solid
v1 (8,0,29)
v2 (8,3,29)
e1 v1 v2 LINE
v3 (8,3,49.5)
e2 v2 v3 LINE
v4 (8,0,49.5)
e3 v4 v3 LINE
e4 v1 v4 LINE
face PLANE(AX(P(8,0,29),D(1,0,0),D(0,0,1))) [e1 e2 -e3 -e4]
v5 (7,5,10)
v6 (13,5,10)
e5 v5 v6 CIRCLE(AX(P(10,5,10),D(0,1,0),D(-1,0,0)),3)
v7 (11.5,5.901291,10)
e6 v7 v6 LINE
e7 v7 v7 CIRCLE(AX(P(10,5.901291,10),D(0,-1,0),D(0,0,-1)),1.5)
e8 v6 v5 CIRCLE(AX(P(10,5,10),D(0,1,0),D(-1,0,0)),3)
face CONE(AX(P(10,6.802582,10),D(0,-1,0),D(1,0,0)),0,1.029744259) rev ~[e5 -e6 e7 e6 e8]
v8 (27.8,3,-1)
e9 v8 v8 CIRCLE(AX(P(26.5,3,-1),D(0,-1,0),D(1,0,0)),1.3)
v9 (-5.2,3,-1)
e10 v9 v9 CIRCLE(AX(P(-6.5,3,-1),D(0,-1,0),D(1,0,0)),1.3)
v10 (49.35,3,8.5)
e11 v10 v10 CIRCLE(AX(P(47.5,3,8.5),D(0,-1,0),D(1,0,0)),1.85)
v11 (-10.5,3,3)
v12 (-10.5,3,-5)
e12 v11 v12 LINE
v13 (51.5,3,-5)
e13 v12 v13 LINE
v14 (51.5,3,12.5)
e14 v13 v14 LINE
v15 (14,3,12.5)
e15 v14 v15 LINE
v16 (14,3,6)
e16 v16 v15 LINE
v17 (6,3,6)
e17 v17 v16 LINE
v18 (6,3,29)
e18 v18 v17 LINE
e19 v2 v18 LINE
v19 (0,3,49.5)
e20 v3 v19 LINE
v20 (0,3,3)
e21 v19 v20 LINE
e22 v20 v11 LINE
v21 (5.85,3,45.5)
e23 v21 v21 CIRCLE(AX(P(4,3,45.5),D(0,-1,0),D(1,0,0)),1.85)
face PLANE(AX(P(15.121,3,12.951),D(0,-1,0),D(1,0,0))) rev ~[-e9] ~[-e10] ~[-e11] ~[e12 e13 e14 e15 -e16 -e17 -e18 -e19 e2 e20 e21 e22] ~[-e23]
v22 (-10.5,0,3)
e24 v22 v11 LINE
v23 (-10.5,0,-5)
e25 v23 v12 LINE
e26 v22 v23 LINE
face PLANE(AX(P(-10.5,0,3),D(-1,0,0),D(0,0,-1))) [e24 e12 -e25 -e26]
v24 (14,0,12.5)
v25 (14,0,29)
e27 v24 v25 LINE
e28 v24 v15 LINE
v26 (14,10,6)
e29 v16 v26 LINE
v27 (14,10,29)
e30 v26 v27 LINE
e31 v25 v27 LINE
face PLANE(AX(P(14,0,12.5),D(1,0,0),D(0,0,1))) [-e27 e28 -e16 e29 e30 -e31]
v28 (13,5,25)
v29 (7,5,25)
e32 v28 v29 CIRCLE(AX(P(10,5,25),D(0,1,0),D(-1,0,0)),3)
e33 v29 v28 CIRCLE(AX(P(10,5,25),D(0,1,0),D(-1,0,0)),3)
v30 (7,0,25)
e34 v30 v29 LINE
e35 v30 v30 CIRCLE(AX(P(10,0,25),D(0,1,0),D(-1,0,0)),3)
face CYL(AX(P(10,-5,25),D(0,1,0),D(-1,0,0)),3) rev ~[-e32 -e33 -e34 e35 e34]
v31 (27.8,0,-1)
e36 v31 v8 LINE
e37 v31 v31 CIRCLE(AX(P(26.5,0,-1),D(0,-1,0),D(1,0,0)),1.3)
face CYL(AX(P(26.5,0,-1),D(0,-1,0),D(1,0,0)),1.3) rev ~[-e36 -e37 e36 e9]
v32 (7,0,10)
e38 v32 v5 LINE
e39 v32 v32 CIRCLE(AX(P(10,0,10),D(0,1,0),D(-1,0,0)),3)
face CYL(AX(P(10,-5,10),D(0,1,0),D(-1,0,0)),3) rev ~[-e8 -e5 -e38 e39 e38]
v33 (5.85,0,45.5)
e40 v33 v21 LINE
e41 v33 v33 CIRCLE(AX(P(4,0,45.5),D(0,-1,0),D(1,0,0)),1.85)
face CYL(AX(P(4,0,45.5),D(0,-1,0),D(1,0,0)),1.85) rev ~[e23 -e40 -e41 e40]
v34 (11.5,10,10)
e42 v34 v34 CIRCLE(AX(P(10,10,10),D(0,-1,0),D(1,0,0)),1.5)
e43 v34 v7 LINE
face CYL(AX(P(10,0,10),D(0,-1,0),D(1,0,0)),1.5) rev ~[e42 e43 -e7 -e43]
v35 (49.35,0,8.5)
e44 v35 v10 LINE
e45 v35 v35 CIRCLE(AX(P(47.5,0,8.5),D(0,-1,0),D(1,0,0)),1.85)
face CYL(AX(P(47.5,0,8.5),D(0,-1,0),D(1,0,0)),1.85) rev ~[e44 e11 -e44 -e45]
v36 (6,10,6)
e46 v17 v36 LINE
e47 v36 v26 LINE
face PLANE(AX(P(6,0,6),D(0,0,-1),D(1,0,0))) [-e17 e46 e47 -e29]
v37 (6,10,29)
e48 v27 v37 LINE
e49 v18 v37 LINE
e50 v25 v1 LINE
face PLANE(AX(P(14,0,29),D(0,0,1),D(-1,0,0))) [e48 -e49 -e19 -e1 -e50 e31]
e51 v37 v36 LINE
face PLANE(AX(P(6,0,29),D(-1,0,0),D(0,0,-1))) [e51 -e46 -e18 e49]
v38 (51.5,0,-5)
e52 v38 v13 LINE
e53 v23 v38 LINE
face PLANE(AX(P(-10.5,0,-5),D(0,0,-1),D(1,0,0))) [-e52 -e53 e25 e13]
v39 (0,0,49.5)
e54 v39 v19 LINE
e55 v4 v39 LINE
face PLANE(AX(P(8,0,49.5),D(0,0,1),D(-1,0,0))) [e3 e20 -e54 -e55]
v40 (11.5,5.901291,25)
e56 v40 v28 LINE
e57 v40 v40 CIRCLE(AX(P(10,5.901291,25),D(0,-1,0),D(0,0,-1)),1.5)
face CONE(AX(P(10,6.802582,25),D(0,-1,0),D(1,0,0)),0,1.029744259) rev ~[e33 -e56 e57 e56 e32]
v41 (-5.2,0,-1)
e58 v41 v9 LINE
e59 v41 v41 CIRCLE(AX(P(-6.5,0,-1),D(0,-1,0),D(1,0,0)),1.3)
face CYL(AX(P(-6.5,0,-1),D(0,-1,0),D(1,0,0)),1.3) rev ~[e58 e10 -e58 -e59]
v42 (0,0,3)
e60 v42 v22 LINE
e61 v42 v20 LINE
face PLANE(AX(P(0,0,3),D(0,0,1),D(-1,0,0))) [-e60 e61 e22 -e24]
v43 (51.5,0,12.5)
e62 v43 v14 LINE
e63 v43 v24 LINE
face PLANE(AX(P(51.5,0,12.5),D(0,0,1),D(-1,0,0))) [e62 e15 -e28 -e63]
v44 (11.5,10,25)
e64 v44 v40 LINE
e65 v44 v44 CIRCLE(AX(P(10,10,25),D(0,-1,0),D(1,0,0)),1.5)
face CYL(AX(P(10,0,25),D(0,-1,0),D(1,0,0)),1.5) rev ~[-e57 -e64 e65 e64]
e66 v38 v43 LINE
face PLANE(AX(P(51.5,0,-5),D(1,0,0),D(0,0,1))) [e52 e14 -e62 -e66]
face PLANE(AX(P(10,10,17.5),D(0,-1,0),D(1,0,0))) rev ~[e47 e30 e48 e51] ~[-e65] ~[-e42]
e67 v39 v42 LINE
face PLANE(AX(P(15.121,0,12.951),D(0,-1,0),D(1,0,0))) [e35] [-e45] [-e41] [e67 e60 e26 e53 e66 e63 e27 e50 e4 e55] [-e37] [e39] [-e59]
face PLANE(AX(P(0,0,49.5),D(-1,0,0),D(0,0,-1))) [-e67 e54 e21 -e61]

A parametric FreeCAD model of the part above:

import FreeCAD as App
import Part
import Sketcher


def add_polygon(sketch, points):
    """Adds a closed chain of lines whose ends are joined by coincident constraints."""
    first, n = sketch.GeometryCount, len(points)
    for a, b in zip(points, points[1:] + points[:1]):
        sketch.addGeometry(Part.LineSegment(App.Vector(*a, 0), App.Vector(*b, 0)), False)
    for i in range(n):
        sketch.addConstraint(Sketcher.Constraint("Coincident", first + i, 2, first + (i + 1) % n, 1))

doc = App.newDocument("Part")
body = doc.addObject("PartDesign::Body", "Body")

# Sketch on XZ plane
sketch1 = body.newObject("Sketcher::SketchObject", "Sketch")
sketch1.AttachmentSupport = (doc.getObject("XZ_Plane"), [""])
sketch1.MapMode = "FlatFace"
add_polygon(sketch1, [(-10.5, -5), (51.5, -5), (51.5, 12.5), (14, 12.5), (14, 29), (8, 29), (8, 49.5), (0, 49.5), (0, 3), (-10.5, 3)])  # lines 0-9
sketch1.addGeometry(Part.Circle(App.Vector(-6.5, -1, 0), App.Vector(0, 0, 1), 1.3), False)  # 10
sketch1.addGeometry(Part.Circle(App.Vector(10, 10, 0), App.Vector(0, 0, 1), 1.5), False)  # 11
sketch1.addGeometry(Part.Circle(App.Vector(26.5, -1, 0), App.Vector(0, 0, 1), 1.3), False)  # 12
sketch1.addGeometry(Part.Circle(App.Vector(47.5, 8.5, 0), App.Vector(0, 0, 1), 1.85), False)  # 13
sketch1.addGeometry(Part.Circle(App.Vector(10, 25, 0), App.Vector(0, 0, 1), 1.5), False)  # 14
sketch1.addGeometry(Part.Circle(App.Vector(4, 45.5, 0), App.Vector(0, 0, 1), 1.85), False)  # 15
sketch1.addConstraint([
    Sketcher.Constraint("Horizontal", 0),
    Sketcher.Constraint("Vertical", 1),
    Sketcher.Constraint("Horizontal", 2),
    Sketcher.Constraint("Vertical", 3),
    Sketcher.Constraint("Horizontal", 4),
    Sketcher.Constraint("Vertical", 5),
    Sketcher.Constraint("Horizontal", 6),
    Sketcher.Constraint("Vertical", 7),
    Sketcher.Constraint("Horizontal", 8),
    Sketcher.Constraint("Vertical", 9),
    Sketcher.Constraint("Equal", 10, 12),
    Sketcher.Constraint("Equal", 11, 14),
    Sketcher.Constraint("Equal", 13, 15),
    Sketcher.Constraint("PointOnObject", 6, 2, -2),
    Sketcher.Constraint("Horizontal", 10, 3, 12, 3),
    Sketcher.Constraint("Vertical", 11, 3, 14, 3),
    Sketcher.Constraint("Equal", 6, 9),
    Sketcher.Constraint("Diameter", 11, 3.0),
    Sketcher.Constraint("Diameter", 10, 2.6),
    Sketcher.Constraint("Diameter", 13, 3.7),
    Sketcher.Constraint("DistanceX", 0, 1, 0, 2, 62.0),
    Sketcher.Constraint("DistanceX", 4, 2, 4, 1, 6.0),
    Sketcher.Constraint("DistanceX", 6, 2, 6, 1, 8.0),
    Sketcher.Constraint("DistanceX", 2, 2, 2, 1, 37.5),
    Sketcher.Constraint("DistanceY", 1, 1, 1, 2, 17.5),
    Sketcher.Constraint("DistanceY", 3, 1, 3, 2, 16.5),
    Sketcher.Constraint("DistanceY", 5, 1, 5, 2, 20.5),
    Sketcher.Constraint("DistanceY", 10, 3, -1, 1, 1.0),
    Sketcher.Constraint("DistanceX", -1, 1, 11, 3, 10.0),
    Sketcher.Constraint("DistanceY", -1, 1, 11, 3, 10.0),
    Sketcher.Constraint("DistanceY", -1, 1, 14, 3, 25.0),
    Sketcher.Constraint("DistanceX", -1, 1, 15, 3, 4.0),
    Sketcher.Constraint("DistanceY", 0, 2, -1, 1, 5.0),
    Sketcher.Constraint("DistanceX", 10, 3, 12, 3, 33.0),
    Sketcher.Constraint("DistanceX", 12, 3, 13, 3, 21.0),
    Sketcher.Constraint("DistanceY", 13, 3, 15, 3, 37.0),
    Sketcher.Constraint("DistanceX", 13, 3, 0, 2, 4.0),
    Sketcher.Constraint("DistanceY", 13, 3, 1, 2, 4.0),
])
pad1 = body.newObject("PartDesign::Pad", "Pad")
pad1.Profile = sketch1
pad1.Length = 3
pad1.Reversed = True

# Sketch on XZ plane
sketch2 = body.newObject("Sketcher::SketchObject", "Sketch001")
sketch2.AttachmentSupport = (doc.getObject("XZ_Plane"), [""])
sketch2.MapMode = "FlatFace"
add_polygon(sketch2, [(14, 6), (14, 29), (6, 29), (6, 6)])  # lines 0-3
sketch2.addGeometry(Part.Circle(App.Vector(10, 10, 0), App.Vector(0, 0, 1), 1.5), False)  # 4
sketch2.addGeometry(Part.Circle(App.Vector(10, 25, 0), App.Vector(0, 0, 1), 1.5), False)  # 5
sketch2.addConstraint([
    Sketcher.Constraint("Vertical", 0),
    Sketcher.Constraint("Horizontal", 1),
    Sketcher.Constraint("Vertical", 2),
    Sketcher.Constraint("Horizontal", 3),
    Sketcher.Constraint("Equal", 4, 5),
    Sketcher.Constraint("Vertical", 4, 3, 5, 3),
    Sketcher.Constraint("Diameter", 4, 3.0),
    Sketcher.Constraint("DistanceX", 1, 2, 1, 1, 8.0),
    Sketcher.Constraint("DistanceY", 0, 1, 0, 2, 23.0),
    Sketcher.Constraint("DistanceX", -1, 1, 4, 3, 10.0),
    Sketcher.Constraint("DistanceY", -1, 1, 4, 3, 10.0),
    Sketcher.Constraint("DistanceY", -1, 1, 5, 3, 25.0),
    Sketcher.Constraint("DistanceX", -1, 1, 0, 2, 14.0),
    Sketcher.Constraint("DistanceY", -1, 1, 0, 2, 29.0),
])
pad2 = body.newObject("PartDesign::Pad", "Pad001")
pad2.Profile = sketch2
pad2.Length = 10
pad2.Reversed = True

# Sketch on XZ plane
sketch3 = body.newObject("Sketcher::SketchObject", "Sketch002")
sketch3.AttachmentSupport = (doc.getObject("XZ_Plane"), [""])
sketch3.MapMode = "FlatFace"
sketch3.addGeometry([
    Part.Circle(App.Vector(10, 25, 0), App.Vector(0, 0, 1), 3),
    Part.Circle(App.Vector(10, 10, 0), App.Vector(0, 0, 1), 3),
], False)
sketch3.addConstraint([
    Sketcher.Constraint("Equal", 0, 1),
    Sketcher.Constraint("Vertical", 0, 3, 1, 3),
    Sketcher.Constraint("Diameter", 0, 6.0),
    Sketcher.Constraint("DistanceX", -1, 1, 0, 3, 10.0),
    Sketcher.Constraint("DistanceY", -1, 1, 0, 3, 25.0),
    Sketcher.Constraint("DistanceY", -1, 1, 1, 3, 10.0),
])
doc.recompute()
hole = body.newObject("PartDesign::Hole", "Hole")
hole.Profile = sketch3
hole.ThreadType = "None"
hole.Diameter = 6
hole.DepthType = "Dimension"
hole.Depth = 5
hole.DrillPoint = "Angled"
hole.DrillPointAngle = 118

doc.recompute()
